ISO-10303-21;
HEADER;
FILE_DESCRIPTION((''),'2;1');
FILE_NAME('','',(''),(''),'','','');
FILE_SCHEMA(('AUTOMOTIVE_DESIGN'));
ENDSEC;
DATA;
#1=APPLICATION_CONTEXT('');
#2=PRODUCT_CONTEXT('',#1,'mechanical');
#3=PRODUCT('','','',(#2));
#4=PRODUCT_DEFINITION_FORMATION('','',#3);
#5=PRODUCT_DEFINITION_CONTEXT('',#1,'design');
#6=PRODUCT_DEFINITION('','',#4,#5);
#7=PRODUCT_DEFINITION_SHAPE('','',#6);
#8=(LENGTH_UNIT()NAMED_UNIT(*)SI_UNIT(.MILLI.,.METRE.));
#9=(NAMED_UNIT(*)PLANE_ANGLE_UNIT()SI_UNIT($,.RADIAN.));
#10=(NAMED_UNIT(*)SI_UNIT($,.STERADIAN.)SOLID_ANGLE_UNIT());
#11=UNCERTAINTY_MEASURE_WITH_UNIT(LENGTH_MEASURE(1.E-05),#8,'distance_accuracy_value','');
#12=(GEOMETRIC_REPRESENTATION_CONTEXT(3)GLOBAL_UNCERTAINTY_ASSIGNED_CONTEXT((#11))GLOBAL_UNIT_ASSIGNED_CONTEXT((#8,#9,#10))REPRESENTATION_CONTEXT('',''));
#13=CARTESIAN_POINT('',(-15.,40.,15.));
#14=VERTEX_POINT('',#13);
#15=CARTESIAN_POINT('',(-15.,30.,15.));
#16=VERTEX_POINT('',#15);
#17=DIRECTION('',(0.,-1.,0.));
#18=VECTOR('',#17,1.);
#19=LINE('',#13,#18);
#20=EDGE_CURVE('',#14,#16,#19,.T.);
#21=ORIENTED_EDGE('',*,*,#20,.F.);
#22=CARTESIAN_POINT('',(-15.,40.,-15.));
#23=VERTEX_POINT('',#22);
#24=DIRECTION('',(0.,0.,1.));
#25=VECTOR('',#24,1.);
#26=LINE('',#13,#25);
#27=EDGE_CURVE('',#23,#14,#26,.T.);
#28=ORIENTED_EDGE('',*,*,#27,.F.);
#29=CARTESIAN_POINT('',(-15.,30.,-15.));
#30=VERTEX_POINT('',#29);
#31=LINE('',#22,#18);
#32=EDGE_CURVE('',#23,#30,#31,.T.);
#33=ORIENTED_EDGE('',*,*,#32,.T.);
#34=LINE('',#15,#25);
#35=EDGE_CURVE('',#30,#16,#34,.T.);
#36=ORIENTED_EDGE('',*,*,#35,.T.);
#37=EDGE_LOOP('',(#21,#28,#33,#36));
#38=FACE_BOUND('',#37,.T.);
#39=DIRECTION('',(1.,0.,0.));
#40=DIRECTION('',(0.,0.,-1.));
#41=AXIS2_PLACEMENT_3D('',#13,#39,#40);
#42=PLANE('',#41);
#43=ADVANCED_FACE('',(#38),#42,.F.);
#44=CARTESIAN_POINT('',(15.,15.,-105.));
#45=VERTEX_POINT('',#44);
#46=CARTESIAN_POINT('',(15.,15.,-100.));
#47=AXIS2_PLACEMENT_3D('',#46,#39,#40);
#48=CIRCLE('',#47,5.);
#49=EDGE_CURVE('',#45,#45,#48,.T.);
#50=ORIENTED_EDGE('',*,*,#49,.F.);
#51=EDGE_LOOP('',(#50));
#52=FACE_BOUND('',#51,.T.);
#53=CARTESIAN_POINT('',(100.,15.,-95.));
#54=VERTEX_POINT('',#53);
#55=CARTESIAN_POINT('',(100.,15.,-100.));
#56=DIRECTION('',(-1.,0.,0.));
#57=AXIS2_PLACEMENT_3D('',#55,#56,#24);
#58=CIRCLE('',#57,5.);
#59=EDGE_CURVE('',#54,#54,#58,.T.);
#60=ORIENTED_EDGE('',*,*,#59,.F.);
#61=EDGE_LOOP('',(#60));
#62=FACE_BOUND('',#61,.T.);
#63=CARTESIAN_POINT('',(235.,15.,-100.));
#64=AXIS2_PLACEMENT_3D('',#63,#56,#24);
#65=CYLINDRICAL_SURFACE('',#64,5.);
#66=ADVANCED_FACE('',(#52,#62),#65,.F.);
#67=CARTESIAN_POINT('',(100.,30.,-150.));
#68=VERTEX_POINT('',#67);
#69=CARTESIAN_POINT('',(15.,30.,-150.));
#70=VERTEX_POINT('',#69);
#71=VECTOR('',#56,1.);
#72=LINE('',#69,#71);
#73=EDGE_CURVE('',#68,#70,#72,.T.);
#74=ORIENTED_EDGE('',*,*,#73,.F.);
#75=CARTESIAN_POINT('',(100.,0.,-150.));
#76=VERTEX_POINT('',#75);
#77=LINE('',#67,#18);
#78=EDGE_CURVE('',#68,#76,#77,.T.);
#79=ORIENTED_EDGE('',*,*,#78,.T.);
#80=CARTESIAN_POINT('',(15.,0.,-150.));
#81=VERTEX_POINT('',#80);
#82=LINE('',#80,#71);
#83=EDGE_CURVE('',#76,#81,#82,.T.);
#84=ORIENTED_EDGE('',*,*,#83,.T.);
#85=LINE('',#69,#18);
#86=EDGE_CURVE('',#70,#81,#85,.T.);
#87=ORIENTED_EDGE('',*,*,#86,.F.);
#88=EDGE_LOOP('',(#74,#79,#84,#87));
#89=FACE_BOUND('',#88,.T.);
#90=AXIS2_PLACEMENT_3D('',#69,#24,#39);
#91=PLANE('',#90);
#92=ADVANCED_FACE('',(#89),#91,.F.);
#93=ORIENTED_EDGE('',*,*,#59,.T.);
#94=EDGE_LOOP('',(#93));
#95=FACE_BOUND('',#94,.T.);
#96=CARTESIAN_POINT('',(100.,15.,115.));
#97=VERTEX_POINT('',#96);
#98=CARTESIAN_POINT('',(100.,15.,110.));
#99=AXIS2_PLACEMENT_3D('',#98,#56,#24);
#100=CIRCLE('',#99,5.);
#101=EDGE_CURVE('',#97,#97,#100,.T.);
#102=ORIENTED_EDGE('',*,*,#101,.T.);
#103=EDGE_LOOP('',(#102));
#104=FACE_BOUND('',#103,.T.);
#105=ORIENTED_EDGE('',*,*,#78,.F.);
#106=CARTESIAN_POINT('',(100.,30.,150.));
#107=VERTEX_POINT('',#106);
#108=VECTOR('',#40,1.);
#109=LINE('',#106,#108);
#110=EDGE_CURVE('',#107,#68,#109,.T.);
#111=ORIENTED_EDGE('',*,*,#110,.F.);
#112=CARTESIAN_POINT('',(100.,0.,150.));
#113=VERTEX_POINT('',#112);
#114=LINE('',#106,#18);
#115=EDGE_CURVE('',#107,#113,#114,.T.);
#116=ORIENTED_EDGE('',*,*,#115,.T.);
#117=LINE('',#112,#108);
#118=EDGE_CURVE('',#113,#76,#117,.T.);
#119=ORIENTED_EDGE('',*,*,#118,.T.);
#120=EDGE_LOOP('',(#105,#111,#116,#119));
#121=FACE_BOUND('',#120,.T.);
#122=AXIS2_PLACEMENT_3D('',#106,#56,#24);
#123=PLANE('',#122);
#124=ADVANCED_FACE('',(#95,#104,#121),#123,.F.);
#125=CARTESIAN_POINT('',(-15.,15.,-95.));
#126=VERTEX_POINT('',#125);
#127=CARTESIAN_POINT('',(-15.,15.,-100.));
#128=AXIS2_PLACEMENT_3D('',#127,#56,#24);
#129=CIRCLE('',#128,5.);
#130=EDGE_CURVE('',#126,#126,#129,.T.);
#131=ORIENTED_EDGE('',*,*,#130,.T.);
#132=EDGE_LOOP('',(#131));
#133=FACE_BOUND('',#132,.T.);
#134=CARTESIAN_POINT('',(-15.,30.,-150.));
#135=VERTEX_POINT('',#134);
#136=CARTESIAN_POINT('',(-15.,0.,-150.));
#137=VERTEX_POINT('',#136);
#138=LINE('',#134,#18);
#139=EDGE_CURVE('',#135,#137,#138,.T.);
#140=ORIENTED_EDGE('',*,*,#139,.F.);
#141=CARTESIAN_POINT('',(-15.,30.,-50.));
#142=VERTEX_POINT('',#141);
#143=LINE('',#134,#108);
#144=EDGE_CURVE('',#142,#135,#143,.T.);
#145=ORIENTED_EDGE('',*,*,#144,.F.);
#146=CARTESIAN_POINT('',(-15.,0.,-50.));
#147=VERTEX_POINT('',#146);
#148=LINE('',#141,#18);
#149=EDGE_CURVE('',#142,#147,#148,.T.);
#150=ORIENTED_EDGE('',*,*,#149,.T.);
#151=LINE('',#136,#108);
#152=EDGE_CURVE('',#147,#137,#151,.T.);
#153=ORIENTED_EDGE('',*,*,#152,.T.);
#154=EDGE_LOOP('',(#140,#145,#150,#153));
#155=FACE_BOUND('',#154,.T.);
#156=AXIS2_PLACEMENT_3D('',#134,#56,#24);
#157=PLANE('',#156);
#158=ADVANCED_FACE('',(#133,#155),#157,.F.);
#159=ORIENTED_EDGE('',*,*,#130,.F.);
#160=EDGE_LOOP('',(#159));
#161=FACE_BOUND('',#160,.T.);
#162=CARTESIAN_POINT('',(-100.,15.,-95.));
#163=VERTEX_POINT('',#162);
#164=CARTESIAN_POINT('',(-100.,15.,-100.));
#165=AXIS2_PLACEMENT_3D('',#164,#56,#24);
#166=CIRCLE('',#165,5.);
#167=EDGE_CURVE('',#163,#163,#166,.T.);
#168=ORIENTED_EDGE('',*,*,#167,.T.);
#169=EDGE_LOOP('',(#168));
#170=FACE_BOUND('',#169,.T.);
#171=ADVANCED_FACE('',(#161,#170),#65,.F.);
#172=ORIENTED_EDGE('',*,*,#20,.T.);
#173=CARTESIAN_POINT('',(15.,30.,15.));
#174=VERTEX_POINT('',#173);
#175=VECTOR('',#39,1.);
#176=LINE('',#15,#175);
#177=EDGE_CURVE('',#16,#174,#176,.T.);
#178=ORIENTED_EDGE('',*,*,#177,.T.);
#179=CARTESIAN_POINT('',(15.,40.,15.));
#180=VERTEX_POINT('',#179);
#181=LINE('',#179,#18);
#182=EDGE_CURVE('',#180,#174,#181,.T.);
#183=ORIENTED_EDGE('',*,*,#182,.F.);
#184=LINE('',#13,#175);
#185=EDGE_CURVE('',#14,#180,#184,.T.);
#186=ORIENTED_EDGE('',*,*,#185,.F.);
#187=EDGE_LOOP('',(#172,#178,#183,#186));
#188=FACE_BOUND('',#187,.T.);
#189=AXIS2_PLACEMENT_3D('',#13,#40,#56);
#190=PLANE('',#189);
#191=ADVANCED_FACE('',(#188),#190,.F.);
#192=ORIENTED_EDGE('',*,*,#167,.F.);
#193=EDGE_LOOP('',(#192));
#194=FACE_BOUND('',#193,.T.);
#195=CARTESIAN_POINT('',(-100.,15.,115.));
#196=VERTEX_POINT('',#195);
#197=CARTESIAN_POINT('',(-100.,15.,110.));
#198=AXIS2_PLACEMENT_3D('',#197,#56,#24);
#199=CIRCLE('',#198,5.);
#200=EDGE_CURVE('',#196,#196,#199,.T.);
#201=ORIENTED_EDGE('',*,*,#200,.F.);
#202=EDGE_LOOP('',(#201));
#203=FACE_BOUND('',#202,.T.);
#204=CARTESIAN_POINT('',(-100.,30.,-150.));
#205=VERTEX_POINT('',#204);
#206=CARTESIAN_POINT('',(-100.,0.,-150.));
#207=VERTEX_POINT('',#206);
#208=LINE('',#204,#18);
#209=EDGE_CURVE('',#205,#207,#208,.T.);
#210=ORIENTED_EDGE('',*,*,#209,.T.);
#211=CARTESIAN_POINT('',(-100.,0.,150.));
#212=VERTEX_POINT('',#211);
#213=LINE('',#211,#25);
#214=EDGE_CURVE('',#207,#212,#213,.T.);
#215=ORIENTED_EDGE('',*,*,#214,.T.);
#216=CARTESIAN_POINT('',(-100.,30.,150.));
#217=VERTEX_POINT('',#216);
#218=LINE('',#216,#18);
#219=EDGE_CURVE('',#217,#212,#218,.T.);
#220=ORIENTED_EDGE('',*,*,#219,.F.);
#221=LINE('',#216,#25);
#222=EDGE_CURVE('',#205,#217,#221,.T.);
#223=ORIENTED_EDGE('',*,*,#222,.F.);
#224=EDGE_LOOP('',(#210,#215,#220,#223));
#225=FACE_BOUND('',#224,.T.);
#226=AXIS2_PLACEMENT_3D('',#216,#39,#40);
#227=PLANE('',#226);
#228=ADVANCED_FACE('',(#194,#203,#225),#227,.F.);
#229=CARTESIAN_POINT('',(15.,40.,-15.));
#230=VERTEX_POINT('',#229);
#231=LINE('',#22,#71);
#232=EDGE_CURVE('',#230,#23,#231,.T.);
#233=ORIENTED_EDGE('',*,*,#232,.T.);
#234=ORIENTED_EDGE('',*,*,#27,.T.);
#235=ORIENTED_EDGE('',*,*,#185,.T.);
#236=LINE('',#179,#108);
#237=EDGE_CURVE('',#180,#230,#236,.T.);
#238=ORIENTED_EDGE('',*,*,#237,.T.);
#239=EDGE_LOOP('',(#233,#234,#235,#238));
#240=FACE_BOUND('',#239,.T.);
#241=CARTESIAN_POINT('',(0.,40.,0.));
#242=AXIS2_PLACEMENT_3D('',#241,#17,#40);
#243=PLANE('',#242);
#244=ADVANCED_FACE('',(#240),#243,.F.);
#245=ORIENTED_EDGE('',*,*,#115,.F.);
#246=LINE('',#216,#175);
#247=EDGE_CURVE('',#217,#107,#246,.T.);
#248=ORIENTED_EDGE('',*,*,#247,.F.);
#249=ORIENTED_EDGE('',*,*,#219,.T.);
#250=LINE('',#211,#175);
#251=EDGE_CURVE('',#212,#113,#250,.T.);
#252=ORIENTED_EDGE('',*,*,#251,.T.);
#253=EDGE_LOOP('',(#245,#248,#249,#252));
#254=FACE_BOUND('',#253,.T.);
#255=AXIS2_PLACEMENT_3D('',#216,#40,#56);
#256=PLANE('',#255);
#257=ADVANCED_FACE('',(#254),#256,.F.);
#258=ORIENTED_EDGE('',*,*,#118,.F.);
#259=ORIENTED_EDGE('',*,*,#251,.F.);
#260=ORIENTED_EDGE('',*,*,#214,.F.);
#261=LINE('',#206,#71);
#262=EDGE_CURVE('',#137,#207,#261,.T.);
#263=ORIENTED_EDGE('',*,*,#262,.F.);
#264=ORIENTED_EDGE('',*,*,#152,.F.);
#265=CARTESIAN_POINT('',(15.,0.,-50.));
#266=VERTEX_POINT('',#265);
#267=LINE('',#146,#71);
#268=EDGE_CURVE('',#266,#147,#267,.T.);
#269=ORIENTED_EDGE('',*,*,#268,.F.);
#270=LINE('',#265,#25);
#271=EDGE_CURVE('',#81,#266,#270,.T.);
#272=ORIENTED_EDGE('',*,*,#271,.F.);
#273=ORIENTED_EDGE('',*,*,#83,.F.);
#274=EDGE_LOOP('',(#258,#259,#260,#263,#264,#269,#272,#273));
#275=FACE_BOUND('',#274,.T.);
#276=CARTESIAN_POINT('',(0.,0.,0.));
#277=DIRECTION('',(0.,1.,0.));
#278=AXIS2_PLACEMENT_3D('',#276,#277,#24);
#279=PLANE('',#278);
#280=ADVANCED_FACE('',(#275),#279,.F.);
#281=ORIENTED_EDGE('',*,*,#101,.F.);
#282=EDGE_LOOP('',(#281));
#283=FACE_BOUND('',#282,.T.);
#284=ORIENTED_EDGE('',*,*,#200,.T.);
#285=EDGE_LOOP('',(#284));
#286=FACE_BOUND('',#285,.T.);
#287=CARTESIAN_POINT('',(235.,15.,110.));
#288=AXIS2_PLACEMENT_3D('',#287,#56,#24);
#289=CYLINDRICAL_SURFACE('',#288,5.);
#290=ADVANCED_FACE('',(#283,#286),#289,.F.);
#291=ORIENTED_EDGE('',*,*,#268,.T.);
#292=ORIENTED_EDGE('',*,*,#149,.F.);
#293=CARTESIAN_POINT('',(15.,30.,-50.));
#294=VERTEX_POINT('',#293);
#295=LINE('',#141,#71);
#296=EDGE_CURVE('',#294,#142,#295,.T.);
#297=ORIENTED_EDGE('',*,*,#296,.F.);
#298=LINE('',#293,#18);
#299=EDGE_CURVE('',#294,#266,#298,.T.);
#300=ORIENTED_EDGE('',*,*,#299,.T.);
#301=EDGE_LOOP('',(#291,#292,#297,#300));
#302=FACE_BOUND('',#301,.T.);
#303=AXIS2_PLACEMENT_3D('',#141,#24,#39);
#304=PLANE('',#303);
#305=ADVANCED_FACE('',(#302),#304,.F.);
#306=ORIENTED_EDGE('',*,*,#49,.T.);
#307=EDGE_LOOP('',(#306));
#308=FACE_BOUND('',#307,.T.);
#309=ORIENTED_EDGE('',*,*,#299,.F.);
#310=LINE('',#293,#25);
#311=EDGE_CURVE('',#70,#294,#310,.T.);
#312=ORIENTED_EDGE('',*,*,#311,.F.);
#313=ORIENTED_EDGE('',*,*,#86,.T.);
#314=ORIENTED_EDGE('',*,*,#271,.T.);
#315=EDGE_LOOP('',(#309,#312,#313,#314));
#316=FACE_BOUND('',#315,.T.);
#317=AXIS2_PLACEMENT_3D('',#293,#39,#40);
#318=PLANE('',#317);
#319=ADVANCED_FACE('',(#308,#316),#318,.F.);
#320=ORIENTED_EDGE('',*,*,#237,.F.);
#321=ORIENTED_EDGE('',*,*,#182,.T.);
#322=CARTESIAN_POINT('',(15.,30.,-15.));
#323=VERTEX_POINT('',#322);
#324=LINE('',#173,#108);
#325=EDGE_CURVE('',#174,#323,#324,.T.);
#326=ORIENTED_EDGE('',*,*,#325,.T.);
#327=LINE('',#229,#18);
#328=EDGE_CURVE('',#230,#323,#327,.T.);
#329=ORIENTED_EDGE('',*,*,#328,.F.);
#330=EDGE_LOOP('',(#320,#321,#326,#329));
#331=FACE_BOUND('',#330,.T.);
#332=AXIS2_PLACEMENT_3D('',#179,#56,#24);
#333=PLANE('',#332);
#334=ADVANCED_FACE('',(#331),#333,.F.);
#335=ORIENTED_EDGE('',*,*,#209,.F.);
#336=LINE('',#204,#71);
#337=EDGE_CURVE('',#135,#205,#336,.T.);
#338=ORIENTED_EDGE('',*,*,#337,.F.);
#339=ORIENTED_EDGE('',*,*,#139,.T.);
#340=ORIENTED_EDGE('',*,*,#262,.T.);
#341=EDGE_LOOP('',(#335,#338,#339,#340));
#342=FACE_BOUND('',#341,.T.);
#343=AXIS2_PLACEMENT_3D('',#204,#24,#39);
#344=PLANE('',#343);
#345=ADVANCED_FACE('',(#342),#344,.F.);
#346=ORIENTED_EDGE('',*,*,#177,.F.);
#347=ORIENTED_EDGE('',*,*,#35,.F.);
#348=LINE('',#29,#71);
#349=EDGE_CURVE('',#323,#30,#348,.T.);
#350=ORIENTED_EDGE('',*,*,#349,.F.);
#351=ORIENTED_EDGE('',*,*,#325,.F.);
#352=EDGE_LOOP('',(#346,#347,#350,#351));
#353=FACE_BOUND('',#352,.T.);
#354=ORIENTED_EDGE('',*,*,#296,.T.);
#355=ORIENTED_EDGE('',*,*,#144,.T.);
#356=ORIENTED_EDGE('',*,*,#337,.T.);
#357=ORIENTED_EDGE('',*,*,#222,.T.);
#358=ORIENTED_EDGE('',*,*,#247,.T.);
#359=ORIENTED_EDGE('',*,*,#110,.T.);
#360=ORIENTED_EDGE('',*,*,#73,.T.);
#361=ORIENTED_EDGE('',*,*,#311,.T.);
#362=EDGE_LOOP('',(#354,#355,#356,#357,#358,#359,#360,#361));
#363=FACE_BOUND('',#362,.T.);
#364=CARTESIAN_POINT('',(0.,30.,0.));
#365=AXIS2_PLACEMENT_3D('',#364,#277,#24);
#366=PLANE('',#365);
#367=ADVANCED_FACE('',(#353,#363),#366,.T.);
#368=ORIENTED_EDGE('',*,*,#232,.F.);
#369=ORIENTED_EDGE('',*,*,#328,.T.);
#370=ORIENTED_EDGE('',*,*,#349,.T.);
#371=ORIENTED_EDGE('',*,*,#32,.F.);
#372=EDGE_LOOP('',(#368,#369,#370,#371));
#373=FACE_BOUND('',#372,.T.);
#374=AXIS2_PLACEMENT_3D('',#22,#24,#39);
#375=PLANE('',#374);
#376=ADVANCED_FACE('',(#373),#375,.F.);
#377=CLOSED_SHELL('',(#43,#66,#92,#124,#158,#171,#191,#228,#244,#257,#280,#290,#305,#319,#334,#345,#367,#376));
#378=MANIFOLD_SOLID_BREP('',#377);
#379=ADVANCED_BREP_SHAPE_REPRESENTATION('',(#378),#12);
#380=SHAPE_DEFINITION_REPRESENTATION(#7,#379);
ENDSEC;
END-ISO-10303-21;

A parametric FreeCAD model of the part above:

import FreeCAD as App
import Part
import Sketcher
from FreeCAD import Vector


def add_polygon(sketch, points):
    """Adds a closed chain of lines whose ends are joined by coincident constraints."""
    first, n = sketch.GeometryCount, len(points)
    for a, b in zip(points, points[1:] + points[:1]):
        sketch.addGeometry(Part.LineSegment(App.Vector(*a, 0), App.Vector(*b, 0)), False)
    for i in range(n):
        sketch.addConstraint(Sketcher.Constraint("Coincident", first + i, 2, first + (i + 1) % n, 1))

doc = App.newDocument("Part")
params = doc.addObject("Spreadsheet::Sheet", "Params")
for row, (alias, value) in enumerate([
    ("sketch1_width", "200 mm"),
    ("sketch1_width2", "85 mm"),
    ("sketch1_height", "300 mm"),
    ("sketch1_height2", "100 mm"),
    ("pad1_length", "30 mm"),
    ("sketch2_diameter", "10 mm"),
    ("pocket1_length", "335 mm"),
    ("sketch3_width", "30 mm"),
    ("pad2_length", "10 mm"),
], start=1):
    params.set(f"A{row}", alias)
    params.set(f"B{row}", "=" + value)
    params.setAlias(f"B{row}", alias)

body = doc.addObject("PartDesign::Body", "Body")

sketch1 = doc.addObject("Sketcher::SketchObject", "Sketch")
body.addObject(sketch1)
sketch1.AttachmentSupport = (doc.XZ_Plane, [""])
sketch1.MapMode = "FlatFace"
add_polygon(sketch1, [(-100, 150), (100, 150), (100, -150), (15, -150), (15, -50), (-15, -50), (-15, -150), (-100, -150)])
sketch1.addConstraint(Sketcher.Constraint("Horizontal", 0))
sketch1.addConstraint(Sketcher.Constraint("Vertical", 1))
sketch1.addConstraint(Sketcher.Constraint("Horizontal", 2))
sketch1.addConstraint(Sketcher.Constraint("Vertical", 3))
sketch1.addConstraint(Sketcher.Constraint("Horizontal", 4))
sketch1.addConstraint(Sketcher.Constraint("Vertical", 5))
sketch1.addConstraint(Sketcher.Constraint("Horizontal", 6))
sketch1.addConstraint(Sketcher.Constraint("Vertical", 7))
sketch1.addConstraint(Sketcher.Constraint("Symmetric", 0, 2, 6, 2, -1, 1))
sketch1.addConstraint(Sketcher.Constraint("Symmetric", 2, 2, 5, 2, -2))
sketch1.addConstraint(Sketcher.Constraint("DistanceX", 0, 1, 0, 2, 200.0))
sketch1.addConstraint(Sketcher.Constraint("DistanceX", 2, 2, 2, 1, 85.0))
sketch1.addConstraint(Sketcher.Constraint("DistanceY", 1, 2, 1, 1, 300.0))
sketch1.addConstraint(Sketcher.Constraint("DistanceY", 3, 1, 3, 2, 100.0))
sketch1.setExpression("Constraints[18]", "Params.sketch1_width")
sketch1.setExpression("Constraints[19]", "Params.sketch1_width2")
sketch1.setExpression("Constraints[20]", "Params.sketch1_height")
sketch1.setExpression("Constraints[21]", "Params.sketch1_height2")
pad1 = doc.addObject("PartDesign::Pad", "Pad")
body.addObject(pad1)
pad1.Profile = sketch1
pad1.setExpression("Length", "Params.pad1_length")
pad1.Reversed = True

sketch2 = doc.addObject("Sketcher::SketchObject", "Sketch001")
body.addObject(sketch2)
sketch2.AttachmentSupport = (doc.YZ_Plane, [""])
sketch2.MapMode = "FlatFace"
sketch2.AttachmentOffset = App.Placement(Vector(0, 0, -100), App.Rotation())
sketch2.addGeometry(Part.Circle(Vector(15, -100, 0), Vector(0, 0, 1), 5), False)
sketch2.addGeometry(Part.Circle(Vector(15, 110, 0), Vector(0, 0, 1), 5), False)
sketch2.addConstraint(Sketcher.Constraint("Equal", 0, 1))
sketch2.addConstraint(Sketcher.Constraint("Vertical", 0, 3, 1, 3))
sketch2.addConstraint(Sketcher.Constraint("Diameter", 0, 10.0))
sketch2.addConstraint(Sketcher.Constraint("DistanceX", -1, 1, 0, 3, 15.0))
sketch2.addConstraint(Sketcher.Constraint("DistanceY", 0, 3, -1, 1, 100.0))
sketch2.addConstraint(Sketcher.Constraint("DistanceY", -1, 1, 1, 3, 110.0))
sketch2.setExpression("Constraints[2]", "Params.sketch2_diameter")
pocket1 = doc.addObject("PartDesign::Pocket", "Pocket")
body.addObject(pocket1)
pocket1.Profile = sketch2
pocket1.setExpression("Length", "Params.pocket1_length")
pocket1.Reversed = True

sketch3 = doc.addObject("Sketcher::SketchObject", "Sketch002")
body.addObject(sketch3)
sketch3.AttachmentSupport = (doc.XZ_Plane, [""])
sketch3.MapMode = "FlatFace"
sketch3.AttachmentOffset = App.Placement(Vector(0, 0, -30), App.Rotation())
add_polygon(sketch3, [(-15, -15), (-15, 15), (15, 15), (15, -15)])
sketch3.addConstraint(Sketcher.Constraint("Vertical", 0))
sketch3.addConstraint(Sketcher.Constraint("Horizontal", 1))
sketch3.addConstraint(Sketcher.Constraint("Vertical", 2))
sketch3.addConstraint(Sketcher.Constraint("Horizontal", 3))
sketch3.addConstraint(Sketcher.Constraint("Symmetric", 0, 2, 2, 2, -1, 1))
sketch3.addConstraint(Sketcher.Constraint("Equal", 3, 0))
sketch3.addConstraint(Sketcher.Constraint("DistanceX", 1, 1, 1, 2, 30.0))
sketch3.setExpression("Constraints[10]", "Params.sketch3_width")
pad2 = doc.addObject("PartDesign::Pad", "Pad001")
body.addObject(pad2)
pad2.Profile = sketch3
pad2.setExpression("Length", "Params.pad2_length")
pad2.Reversed = True

doc.recompute()
